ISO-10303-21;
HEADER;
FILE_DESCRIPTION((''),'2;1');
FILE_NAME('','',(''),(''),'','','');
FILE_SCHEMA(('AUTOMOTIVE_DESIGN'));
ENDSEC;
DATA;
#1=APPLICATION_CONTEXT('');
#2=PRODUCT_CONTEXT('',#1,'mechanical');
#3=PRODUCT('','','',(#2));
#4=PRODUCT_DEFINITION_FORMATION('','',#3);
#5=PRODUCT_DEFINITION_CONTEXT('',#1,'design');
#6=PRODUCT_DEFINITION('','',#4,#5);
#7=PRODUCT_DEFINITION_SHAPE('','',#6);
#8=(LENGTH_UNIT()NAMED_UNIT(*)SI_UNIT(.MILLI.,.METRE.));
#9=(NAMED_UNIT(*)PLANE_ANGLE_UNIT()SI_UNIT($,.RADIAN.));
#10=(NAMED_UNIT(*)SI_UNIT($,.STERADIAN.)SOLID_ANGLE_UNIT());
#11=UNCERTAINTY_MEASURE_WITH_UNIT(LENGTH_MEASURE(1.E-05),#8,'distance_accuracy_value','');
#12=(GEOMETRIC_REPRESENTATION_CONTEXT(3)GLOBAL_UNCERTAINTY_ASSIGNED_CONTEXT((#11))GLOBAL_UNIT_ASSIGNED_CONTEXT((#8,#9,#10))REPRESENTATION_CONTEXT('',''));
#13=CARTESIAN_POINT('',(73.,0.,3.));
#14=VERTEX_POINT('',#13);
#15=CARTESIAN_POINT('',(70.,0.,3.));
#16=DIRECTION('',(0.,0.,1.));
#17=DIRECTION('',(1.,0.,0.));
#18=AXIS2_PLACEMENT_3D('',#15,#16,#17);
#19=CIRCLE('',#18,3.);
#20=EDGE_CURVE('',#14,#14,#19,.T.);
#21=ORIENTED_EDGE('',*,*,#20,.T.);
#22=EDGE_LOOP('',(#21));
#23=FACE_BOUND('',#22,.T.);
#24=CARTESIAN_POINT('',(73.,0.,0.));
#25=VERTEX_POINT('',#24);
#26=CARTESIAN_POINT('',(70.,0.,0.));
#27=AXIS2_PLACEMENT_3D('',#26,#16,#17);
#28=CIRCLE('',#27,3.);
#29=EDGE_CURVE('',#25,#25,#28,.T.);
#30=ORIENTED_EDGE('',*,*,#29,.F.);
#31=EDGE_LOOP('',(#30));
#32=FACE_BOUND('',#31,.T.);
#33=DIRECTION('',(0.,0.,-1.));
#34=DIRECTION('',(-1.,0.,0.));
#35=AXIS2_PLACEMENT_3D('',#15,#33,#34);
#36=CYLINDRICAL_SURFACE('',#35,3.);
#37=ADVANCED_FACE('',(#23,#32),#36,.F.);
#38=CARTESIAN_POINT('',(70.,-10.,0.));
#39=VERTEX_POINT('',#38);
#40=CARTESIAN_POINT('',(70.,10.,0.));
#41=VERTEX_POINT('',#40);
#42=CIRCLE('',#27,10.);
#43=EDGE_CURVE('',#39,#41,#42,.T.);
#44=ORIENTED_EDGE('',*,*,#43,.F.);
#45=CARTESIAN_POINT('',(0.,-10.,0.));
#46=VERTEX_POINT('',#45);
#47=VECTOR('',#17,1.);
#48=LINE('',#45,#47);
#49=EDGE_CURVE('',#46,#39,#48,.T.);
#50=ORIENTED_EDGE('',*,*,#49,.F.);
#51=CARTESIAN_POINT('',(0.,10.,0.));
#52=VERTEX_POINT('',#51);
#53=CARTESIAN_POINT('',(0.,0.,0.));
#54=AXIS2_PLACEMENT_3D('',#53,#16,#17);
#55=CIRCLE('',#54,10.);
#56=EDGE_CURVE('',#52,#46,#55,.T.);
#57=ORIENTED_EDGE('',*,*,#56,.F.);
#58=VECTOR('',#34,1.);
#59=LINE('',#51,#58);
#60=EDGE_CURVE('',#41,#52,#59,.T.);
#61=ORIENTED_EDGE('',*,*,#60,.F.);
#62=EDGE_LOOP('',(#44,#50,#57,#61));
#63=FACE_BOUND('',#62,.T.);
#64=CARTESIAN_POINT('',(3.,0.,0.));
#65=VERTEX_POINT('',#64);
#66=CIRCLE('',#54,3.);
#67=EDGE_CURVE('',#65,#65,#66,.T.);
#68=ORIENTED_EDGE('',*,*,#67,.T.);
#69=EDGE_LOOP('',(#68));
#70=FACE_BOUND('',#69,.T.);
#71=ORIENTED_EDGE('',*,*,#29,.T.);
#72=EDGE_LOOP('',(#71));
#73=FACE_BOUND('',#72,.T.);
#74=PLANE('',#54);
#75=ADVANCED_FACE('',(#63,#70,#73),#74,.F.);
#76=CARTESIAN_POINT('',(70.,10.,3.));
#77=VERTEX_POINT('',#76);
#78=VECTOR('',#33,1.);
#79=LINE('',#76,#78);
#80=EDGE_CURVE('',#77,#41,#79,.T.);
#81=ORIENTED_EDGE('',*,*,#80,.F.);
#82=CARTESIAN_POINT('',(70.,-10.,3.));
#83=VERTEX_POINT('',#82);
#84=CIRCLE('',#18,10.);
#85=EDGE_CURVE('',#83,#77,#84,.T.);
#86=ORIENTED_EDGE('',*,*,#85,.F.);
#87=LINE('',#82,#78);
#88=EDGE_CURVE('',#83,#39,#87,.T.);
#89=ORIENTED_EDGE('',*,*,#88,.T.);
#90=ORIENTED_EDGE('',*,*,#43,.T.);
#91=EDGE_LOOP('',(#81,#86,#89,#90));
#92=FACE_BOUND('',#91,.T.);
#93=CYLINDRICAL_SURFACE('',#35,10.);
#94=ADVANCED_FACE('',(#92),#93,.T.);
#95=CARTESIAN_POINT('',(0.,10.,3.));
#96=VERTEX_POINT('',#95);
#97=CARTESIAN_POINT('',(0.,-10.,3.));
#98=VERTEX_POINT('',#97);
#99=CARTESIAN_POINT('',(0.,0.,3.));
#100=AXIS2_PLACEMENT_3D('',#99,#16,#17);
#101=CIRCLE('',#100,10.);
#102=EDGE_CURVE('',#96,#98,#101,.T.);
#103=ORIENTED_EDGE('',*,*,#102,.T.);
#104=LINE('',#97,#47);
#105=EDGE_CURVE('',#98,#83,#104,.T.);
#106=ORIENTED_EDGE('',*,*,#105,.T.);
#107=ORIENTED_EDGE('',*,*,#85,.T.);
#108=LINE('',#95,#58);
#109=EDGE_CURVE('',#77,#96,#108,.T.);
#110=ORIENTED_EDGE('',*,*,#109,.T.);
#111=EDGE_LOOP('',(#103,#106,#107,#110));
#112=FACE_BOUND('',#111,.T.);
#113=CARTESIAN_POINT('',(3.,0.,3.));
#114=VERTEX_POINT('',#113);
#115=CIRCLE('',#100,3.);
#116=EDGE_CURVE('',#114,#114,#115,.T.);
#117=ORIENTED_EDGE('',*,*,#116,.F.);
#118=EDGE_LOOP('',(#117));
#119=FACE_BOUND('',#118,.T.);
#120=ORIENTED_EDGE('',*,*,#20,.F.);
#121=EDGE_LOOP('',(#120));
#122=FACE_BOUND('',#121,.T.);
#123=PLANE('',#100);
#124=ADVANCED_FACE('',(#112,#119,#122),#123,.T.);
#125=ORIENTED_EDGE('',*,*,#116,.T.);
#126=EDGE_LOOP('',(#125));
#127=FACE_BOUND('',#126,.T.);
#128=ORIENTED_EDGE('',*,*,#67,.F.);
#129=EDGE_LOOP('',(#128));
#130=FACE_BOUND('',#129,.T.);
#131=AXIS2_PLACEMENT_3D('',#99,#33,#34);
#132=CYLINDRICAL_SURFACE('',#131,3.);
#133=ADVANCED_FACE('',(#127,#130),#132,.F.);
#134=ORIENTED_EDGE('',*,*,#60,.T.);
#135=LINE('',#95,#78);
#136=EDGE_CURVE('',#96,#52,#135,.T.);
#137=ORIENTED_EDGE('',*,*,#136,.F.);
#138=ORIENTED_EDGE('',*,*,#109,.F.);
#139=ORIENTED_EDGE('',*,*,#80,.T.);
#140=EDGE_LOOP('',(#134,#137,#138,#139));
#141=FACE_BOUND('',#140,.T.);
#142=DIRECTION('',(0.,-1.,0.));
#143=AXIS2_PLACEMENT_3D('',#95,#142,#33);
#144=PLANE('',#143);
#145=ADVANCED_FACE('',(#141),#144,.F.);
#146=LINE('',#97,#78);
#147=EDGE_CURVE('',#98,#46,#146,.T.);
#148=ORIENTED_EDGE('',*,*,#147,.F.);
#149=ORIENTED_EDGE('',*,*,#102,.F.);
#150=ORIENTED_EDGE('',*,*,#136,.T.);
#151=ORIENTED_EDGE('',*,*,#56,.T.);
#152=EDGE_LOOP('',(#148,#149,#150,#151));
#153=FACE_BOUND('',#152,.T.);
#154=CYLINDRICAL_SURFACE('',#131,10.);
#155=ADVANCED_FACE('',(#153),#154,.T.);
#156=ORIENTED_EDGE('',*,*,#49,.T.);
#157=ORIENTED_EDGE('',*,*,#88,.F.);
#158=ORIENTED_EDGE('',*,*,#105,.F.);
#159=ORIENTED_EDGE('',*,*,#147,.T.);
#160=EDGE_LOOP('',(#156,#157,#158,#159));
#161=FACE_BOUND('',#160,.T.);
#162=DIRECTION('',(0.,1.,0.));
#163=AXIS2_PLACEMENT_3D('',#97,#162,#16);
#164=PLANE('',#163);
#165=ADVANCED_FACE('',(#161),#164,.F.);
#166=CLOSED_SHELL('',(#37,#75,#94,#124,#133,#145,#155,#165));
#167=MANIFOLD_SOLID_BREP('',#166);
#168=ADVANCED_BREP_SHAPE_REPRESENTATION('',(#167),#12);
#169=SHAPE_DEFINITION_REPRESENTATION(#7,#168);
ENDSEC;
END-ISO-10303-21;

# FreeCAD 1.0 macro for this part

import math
import FreeCAD as App
import Part
import Sketcher
from FreeCAD import Vector

doc = App.newDocument("Part")
body = doc.addObject("PartDesign::Body", "Body")

# Sketch on XY plane
sketch1 = doc.addObject("Sketcher::SketchObject", "Sketch")
body.addObject(sketch1)
sketch1.AttachmentSupport = (doc.XY_Plane, [""])
sketch1.MapMode = "FlatFace"
sketch1.addGeometry([
    Part.LineSegment(Vector(70, 10, 0), Vector(0, 10, 0)),  # 0
    Part.ArcOfCircle(Part.Circle(Vector(0, 0, 0), Vector(0, 0, 1), 10), math.radians(90), math.radians(270)),  # 1
    Part.LineSegment(Vector(0, -10, 0), Vector(70, -10, 0)),  # 2
    Part.ArcOfCircle(Part.Circle(Vector(70, 0, 0), Vector(0, 0, 1), 10), math.radians(-90), math.radians(90)),  # 3
    Part.Circle(Vector(70, 0, 0), Vector(0, 0, 1), 3),  # 4
    Part.Circle(Vector(0, 0, 0), Vector(0, 0, 1), 3),  # 5
], False)
sketch1.addConstraint([
    Sketcher.Constraint("Tangent", 0, 2, 1, 1),
    Sketcher.Constraint("Tangent", 1, 2, 2, 1),
    Sketcher.Constraint("Tangent", 2, 2, 3, 1),
    Sketcher.Constraint("Tangent", 3, 2, 0, 1),
    Sketcher.Constraint("Horizontal", 0),
    Sketcher.Constraint("Horizontal", 2),
    Sketcher.Constraint("Coincident", 1, 3, -1, 1),
    Sketcher.Constraint("Coincident", 5, 3, -1, 1),
    Sketcher.Constraint("Coincident", 4, 3, 3, 3),
    Sketcher.Constraint("Equal", 4, 5),
    Sketcher.Constraint("Diameter", 4, 6.0),
    Sketcher.Constraint("Radius", 1, 10.0),
    Sketcher.Constraint("DistanceX", 0, 2, 0, 1, 70.0),
])
pad1 = doc.addObject("PartDesign::Pad", "Pad")
body.addObject(pad1)
pad1.Profile = sketch1
pad1.Length = 3

doc.recompute()
